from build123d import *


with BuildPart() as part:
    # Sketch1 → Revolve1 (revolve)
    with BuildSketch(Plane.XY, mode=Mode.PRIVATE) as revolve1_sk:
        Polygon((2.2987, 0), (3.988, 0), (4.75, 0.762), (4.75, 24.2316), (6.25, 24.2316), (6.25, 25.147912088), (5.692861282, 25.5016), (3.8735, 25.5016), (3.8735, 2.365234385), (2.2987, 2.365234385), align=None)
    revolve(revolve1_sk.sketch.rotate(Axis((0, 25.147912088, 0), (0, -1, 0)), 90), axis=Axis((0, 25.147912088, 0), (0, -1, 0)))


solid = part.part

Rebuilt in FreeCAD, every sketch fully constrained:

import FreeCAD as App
import Part
import Sketcher
Q = App.Units.Quantity

doc = App.newDocument("Part")
body = doc.addObject("PartDesign::Body", "Body")

# Sketch on XY plane
sketch1 = body.newObject("Sketcher::SketchObject", "Sketch")
sketch1.AttachmentSupport = (doc.getObject("XY_Plane"), [""])
sketch1.MapMode = "FlatFace"
sketch1.addGeometry([
    Part.LineSegment(App.Vector(2.2987, 0, 0), App.Vector(3.988, 0, 0)),  # 0
    Part.LineSegment(App.Vector(3.988, 0, 0), App.Vector(4.75, 0.762, 0)),  # 1
    Part.LineSegment(App.Vector(4.75, 0.762, 0), App.Vector(4.75, 24.2316, 0)),  # 2
    Part.LineSegment(App.Vector(4.75, 24.2316, 0), App.Vector(6.25, 24.2316, 0)),  # 3
    Part.LineSegment(App.Vector(6.25, 24.2316, 0), App.Vector(6.25, 25.147912, 0)),  # 4
    Part.LineSegment(App.Vector(6.25, 25.147912, 0), App.Vector(5.692861, 25.5016, 0)),  # 5
    Part.LineSegment(App.Vector(5.692861, 25.5016, 0), App.Vector(3.8735, 25.5016, 0)),  # 6
    Part.LineSegment(App.Vector(3.8735, 25.5016, 0), App.Vector(3.8735, 2.365234, 0)),  # 7
    Part.LineSegment(App.Vector(3.8735, 2.365234, 0), App.Vector(2.2987, 2.365234, 0)),  # 8
    Part.LineSegment(App.Vector(2.2987, 2.365234, 0), App.Vector(2.2987, 0, 0)),  # 9
], False)
sketch1.addConstraint([
    Sketcher.Constraint("Coincident", 0, 2, 1, 1),
    Sketcher.Constraint("Coincident", 1, 2, 2, 1),
    Sketcher.Constraint("Coincident", 2, 2, 3, 1),
    Sketcher.Constraint("Coincident", 3, 2, 4, 1),
    Sketcher.Constraint("Coincident", 4, 2, 5, 1),
    Sketcher.Constraint("Coincident", 5, 2, 6, 1),
    Sketcher.Constraint("Coincident", 6, 2, 7, 1),
    Sketcher.Constraint("Coincident", 7, 2, 8, 1),
    Sketcher.Constraint("Coincident", 8, 2, 9, 1),
    Sketcher.Constraint("Coincident", 9, 2, 0, 1),
    Sketcher.Constraint("Horizontal", 0),
    Sketcher.Constraint("Vertical", 2),
    Sketcher.Constraint("Horizontal", 3),
    Sketcher.Constraint("Vertical", 4),
    Sketcher.Constraint("Horizontal", 6),
    Sketcher.Constraint("Vertical", 7),
    Sketcher.Constraint("Horizontal", 8),
    Sketcher.Constraint("Vertical", 9),
    Sketcher.Constraint("PointOnObject", 0, 2, -1),
    Sketcher.Constraint("Angle", 1, Q("45 deg")),
    Sketcher.Constraint("DistanceX", 8, 2, 8, 1, Q("0.062 in")),
    Sketcher.Constraint("DistanceY", 2, 1, 2, 2, Q("0.924 in")),
    Sketcher.Constraint("DistanceY", -1, 1, 1, 2, Q("0.03 in")),
    Sketcher.Constraint("DistanceY", 3, 2, 5, 2, Q("0.05 in")),
    Sketcher.Constraint("DistanceX", 0, 1, 0, 2, Q("1.6893 mm")),
    Sketcher.Constraint("DistanceX", 3, 1, 3, 2, Q("1.5 mm")),
    Sketcher.Constraint("DistanceX", -1, 1, 6, 2, Q("0.1525 in")),
    Sketcher.Constraint("DistanceX", 6, 2, 6, 1, Q("1.819361 mm")),
    Sketcher.Constraint("DistanceY", 4, 1, 4, 2, Q("0.916312 mm")),
    Sketcher.Constraint("DistanceY", 7, 2, 7, 1, Q("23.136366 mm")),
])
revolution = body.newObject("PartDesign::Revolution", "Revolution")
revolution.Profile = sketch1
revolution.ReferenceAxis = (sketch1, ["V_Axis"])
revolution.Angle = 360

doc.recompute()
